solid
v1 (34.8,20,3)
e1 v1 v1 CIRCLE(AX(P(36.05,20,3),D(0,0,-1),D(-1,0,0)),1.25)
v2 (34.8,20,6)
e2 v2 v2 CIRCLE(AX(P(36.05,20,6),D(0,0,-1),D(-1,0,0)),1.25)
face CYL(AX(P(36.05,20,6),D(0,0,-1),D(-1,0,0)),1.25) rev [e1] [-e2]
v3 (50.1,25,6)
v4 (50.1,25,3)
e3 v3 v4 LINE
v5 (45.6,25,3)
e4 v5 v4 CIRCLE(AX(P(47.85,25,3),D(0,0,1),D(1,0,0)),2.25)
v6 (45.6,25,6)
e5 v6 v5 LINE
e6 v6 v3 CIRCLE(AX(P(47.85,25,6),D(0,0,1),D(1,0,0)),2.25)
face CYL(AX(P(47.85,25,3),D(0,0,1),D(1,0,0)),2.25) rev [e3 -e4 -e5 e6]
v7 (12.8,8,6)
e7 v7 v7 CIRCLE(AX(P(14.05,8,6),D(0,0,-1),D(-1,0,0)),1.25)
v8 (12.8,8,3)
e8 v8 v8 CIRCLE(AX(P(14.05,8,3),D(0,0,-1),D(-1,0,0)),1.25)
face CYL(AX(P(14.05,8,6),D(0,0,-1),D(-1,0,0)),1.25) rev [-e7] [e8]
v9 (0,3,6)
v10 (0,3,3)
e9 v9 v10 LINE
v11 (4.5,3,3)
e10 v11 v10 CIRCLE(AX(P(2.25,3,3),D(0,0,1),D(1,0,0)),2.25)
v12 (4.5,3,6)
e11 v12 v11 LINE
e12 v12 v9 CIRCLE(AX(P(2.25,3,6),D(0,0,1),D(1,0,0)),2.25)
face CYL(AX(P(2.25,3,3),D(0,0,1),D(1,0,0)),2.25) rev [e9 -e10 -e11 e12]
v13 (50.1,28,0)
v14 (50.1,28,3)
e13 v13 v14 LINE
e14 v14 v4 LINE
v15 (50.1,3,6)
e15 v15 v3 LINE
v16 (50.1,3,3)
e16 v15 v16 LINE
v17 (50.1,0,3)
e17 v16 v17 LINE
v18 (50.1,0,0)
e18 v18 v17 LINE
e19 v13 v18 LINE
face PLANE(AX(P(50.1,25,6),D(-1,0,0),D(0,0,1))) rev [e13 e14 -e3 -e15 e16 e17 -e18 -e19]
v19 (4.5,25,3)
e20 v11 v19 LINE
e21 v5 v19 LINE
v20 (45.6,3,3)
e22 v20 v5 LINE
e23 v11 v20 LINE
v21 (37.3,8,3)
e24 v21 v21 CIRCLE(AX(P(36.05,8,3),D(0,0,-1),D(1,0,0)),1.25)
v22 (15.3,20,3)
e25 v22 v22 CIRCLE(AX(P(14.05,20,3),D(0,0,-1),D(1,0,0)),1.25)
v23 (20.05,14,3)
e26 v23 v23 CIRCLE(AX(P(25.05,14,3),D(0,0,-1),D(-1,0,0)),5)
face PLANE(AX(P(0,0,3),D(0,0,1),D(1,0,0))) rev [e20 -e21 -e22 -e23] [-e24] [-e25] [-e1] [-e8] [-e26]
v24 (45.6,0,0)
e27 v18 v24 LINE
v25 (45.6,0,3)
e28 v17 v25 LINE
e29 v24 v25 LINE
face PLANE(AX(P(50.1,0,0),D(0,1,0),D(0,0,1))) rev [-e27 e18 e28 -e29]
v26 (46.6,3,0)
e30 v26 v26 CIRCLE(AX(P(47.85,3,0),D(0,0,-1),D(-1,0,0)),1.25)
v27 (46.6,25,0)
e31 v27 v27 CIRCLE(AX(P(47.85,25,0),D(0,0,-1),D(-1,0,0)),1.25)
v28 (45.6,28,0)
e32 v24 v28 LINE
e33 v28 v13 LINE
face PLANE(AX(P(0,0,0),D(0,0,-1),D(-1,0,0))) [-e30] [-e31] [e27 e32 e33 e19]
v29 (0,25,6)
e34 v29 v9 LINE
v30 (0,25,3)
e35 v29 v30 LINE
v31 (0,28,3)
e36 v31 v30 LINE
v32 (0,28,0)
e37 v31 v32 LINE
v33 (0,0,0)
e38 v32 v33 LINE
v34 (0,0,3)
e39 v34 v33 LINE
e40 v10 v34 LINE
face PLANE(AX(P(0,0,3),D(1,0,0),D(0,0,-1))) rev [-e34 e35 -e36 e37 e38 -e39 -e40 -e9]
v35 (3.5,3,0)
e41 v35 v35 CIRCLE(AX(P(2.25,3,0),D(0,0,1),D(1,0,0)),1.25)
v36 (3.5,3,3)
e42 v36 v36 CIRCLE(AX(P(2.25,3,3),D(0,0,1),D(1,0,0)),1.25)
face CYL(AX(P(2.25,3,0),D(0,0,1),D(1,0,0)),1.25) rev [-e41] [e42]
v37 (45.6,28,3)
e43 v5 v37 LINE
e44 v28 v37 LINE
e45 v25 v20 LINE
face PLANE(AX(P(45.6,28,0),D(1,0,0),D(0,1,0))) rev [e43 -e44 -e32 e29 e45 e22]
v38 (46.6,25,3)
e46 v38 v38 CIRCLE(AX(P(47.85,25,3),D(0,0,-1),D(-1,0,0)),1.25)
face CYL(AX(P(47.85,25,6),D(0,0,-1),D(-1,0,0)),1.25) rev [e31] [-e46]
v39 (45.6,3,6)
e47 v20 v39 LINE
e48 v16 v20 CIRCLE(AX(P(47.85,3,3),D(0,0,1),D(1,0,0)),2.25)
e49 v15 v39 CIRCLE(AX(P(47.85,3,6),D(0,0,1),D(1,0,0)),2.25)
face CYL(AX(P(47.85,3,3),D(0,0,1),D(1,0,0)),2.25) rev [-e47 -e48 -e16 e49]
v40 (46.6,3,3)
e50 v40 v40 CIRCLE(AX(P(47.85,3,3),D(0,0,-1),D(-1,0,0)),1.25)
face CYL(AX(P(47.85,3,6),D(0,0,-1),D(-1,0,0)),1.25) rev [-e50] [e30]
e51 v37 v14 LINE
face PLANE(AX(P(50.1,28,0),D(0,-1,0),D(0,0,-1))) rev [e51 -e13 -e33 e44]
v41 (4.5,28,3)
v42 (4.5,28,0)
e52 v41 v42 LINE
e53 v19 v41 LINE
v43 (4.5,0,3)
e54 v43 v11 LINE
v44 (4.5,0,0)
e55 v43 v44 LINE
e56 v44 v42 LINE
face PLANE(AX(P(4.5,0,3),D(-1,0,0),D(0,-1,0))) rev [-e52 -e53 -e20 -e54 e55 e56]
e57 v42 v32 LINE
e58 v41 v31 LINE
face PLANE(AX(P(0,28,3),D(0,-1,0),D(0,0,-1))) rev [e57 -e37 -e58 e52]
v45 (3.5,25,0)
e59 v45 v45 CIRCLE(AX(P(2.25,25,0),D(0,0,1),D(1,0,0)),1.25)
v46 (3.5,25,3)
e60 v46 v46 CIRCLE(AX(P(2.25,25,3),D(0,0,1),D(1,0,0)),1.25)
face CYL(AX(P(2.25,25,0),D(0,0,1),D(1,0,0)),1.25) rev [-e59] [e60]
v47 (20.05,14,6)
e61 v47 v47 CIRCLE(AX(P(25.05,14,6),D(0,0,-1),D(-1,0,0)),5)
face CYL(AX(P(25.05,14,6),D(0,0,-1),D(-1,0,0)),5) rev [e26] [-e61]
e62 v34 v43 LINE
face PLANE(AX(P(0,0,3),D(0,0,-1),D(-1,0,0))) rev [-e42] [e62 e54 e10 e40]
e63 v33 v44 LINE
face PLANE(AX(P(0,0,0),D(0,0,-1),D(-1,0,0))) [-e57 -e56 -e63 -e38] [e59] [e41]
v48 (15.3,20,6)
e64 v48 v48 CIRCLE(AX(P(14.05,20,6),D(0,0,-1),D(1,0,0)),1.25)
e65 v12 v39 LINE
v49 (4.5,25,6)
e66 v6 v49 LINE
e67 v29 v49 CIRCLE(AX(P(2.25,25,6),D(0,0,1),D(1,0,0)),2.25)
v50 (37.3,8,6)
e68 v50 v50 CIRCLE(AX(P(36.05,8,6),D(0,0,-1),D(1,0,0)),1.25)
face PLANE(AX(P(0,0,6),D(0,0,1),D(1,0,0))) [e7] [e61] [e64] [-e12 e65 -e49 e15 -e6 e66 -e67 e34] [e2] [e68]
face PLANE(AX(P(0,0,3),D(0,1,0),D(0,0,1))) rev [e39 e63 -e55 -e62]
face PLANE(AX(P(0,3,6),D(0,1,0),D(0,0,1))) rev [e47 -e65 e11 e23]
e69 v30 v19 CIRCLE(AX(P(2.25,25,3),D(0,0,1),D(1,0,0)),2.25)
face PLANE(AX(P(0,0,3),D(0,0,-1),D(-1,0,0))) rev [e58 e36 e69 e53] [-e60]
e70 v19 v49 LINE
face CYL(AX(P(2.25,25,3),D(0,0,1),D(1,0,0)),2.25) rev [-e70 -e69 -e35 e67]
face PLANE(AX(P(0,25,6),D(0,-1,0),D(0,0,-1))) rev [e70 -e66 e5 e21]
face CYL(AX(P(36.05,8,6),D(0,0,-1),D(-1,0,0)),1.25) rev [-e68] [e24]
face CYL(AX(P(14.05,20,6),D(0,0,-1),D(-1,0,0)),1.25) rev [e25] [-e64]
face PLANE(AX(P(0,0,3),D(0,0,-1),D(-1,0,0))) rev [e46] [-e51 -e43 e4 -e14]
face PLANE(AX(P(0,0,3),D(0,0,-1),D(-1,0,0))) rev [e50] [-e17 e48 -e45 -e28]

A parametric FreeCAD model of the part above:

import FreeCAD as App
import Part
import Sketcher

V = App.Vector

doc = App.newDocument("Part")
body = doc.addObject("PartDesign::Body", "Body")

# Sketch on XY plane
sketch1 = doc.addObject("Sketcher::SketchObject", "Sketch")
body.addObject(sketch1)
sketch1.AttachmentSupport = (doc.XY_Plane, [""])
sketch1.MapMode = "FlatFace"
sketch1.addGeometry([
    Part.LineSegment(V(0, 28, 0), V(0, 0, 0)),
    Part.LineSegment(V(0, 0, 0), V(4.5, 0, 0)),
    Part.LineSegment(V(4.5, 0, 0), V(4.5, 28, 0)),
    Part.LineSegment(V(4.5, 28, 0), V(0, 28, 0)),
], False)
sketch1.addConstraint([
    Sketcher.Constraint("Coincident", 0, 2, 1, 1),
    Sketcher.Constraint("Coincident", 1, 2, 2, 1),
    Sketcher.Constraint("Coincident", 2, 2, 3, 1),
    Sketcher.Constraint("Coincident", 3, 2, 0, 1),
    Sketcher.Constraint("Vertical", 0),
    Sketcher.Constraint("Horizontal", 1),
    Sketcher.Constraint("Vertical", 2),
    Sketcher.Constraint("Horizontal", 3),
    Sketcher.Constraint("Coincident", 0, 2, -1, 1),
    Sketcher.Constraint("DistanceY", 0, 2, 0, 1, 28.0),
    Sketcher.Constraint("DistanceX", 1, 1, 1, 2, 4.5),
])
pad1 = doc.addObject("PartDesign::Pad", "Pad")
body.addObject(pad1)
pad1.Profile = sketch1
pad1.Length = 3

# Sketch on XY plane
sketch2 = doc.addObject("Sketcher::SketchObject", "Sketch001")
body.addObject(sketch2)
sketch2.AttachmentSupport = (doc.XY_Plane, [""])
sketch2.MapMode = "FlatFace"
sketch2.AttachmentOffset = App.Placement(V(0, 0, 3), App.Rotation())
sketch2.addGeometry([
    Part.LineSegment(V(0, 25, 0), V(0, 3, 0)),
    Part.LineSegment(V(0, 3, 0), V(50.1, 3, 0)),
    Part.LineSegment(V(50.1, 3, 0), V(50.1, 25, 0)),
    Part.LineSegment(V(50.1, 25, 0), V(0, 25, 0)),
], False)
sketch2.addConstraint([
    Sketcher.Constraint("Coincident", 0, 2, 1, 1),
    Sketcher.Constraint("Coincident", 1, 2, 2, 1),
    Sketcher.Constraint("Coincident", 2, 2, 3, 1),
    Sketcher.Constraint("Coincident", 3, 2, 0, 1),
    Sketcher.Constraint("Vertical", 0),
    Sketcher.Constraint("Horizontal", 1),
    Sketcher.Constraint("Vertical", 2),
    Sketcher.Constraint("Horizontal", 3),
    Sketcher.Constraint("PointOnObject", 0, 2, -2),
    Sketcher.Constraint("DistanceY", 0, 2, 0, 1, 22.0),
    Sketcher.Constraint("DistanceX", 1, 1, 1, 2, 50.1),
    Sketcher.Constraint("DistanceY", -1, 1, 0, 2, 3.0),
])
pad2 = doc.addObject("PartDesign::Pad", "Pad001")
body.addObject(pad2)
pad2.Profile = sketch2
pad2.Length = 3

# Sketch on XY plane
sketch3 = doc.addObject("Sketcher::SketchObject", "Sketch002")
body.addObject(sketch3)
sketch3.AttachmentSupport = (doc.XY_Plane, [""])
sketch3.MapMode = "FlatFace"
sketch3.AttachmentOffset = App.Placement(V(0, 0, 3), App.Rotation())
sketch3.addGeometry([
    Part.LineSegment(V(50.1, 28, 0), V(50.1, 0, 0)),
    Part.LineSegment(V(50.1, 0, 0), V(45.6, 0, 0)),
    Part.LineSegment(V(45.6, 0, 0), V(45.6, 28, 0)),
    Part.LineSegment(V(45.6, 28, 0), V(50.1, 28, 0)),
], False)
sketch3.addConstraint([
    Sketcher.Constraint("Coincident", 0, 2, 1, 1),
    Sketcher.Constraint("Coincident", 1, 2, 2, 1),
    Sketcher.Constraint("Coincident", 2, 2, 3, 1),
    Sketcher.Constraint("Coincident", 3, 2, 0, 1),
    Sketcher.Constraint("Vertical", 0),
    Sketcher.Constraint("Horizontal", 1),
    Sketcher.Constraint("Vertical", 2),
    Sketcher.Constraint("Horizontal", 3),
    Sketcher.Constraint("PointOnObject", 0, 2, -1),
    Sketcher.Constraint("DistanceY", 0, 2, 0, 1, 28.0),
    Sketcher.Constraint("DistanceX", 1, 2, 1, 1, 4.5),
    Sketcher.Constraint("DistanceX", -1, 1, 0, 2, 50.1),
])
pad3 = doc.addObject("PartDesign::Pad", "Pad002")
body.addObject(pad3)
pad3.Profile = sketch3
pad3.Length = 3
pad3.Reversed = True

# Sketch on XY plane
sketch4 = doc.addObject("Sketcher::SketchObject", "Sketch003")
body.addObject(sketch4)
sketch4.AttachmentSupport = (doc.XY_Plane, [""])
sketch4.MapMode = "FlatFace"
sketch4.addGeometry([
    Part.Circle(V(47.85, 25, 0), V(0, 0, 1), 1.25),
    Part.Circle(V(47.85, 3, 0), V(0, 0, 1), 1.25),
], False)
sketch4.addConstraint([
    Sketcher.Constraint("Equal", 0, 1),
    Sketcher.Constraint("Vertical", 0, 3, 1, 3),
    Sketcher.Constraint("Diameter", 0, 2.5),
    Sketcher.Constraint("DistanceY", -1, 1, 0, 3, 25.0),
    Sketcher.Constraint("DistanceY", -1, 1, 1, 3, 3.0),
    Sketcher.Constraint("DistanceX", -1, 1, 0, 3, 47.85),
])
pocket1 = doc.addObject("PartDesign::Pocket", "Pocket")
body.addObject(pocket1)
pocket1.Profile = sketch4
pocket1.Type = "ThroughAll"
pocket1.Reversed = True

# Sketch on XY plane
sketch5 = doc.addObject("Sketcher::SketchObject", "Sketch004")
body.addObject(sketch5)
sketch5.AttachmentSupport = (doc.XY_Plane, [""])
sketch5.MapMode = "FlatFace"
sketch5.AttachmentOffset = App.Placement(V(0, 0, 3), App.Rotation())
sketch5.addGeometry([
    Part.Circle(V(2.25, 25, 0), V(0, 0, 1), 1.25),
    Part.Circle(V(2.25, 3, 0), V(0, 0, 1), 1.25),
], False)
sketch5.addConstraint([
    Sketcher.Constraint("Equal", 0, 1),
    Sketcher.Constraint("Vertical", 0, 3, 1, 3),
    Sketcher.Constraint("Diameter", 0, 2.5),
    Sketcher.Constraint("DistanceY", -1, 1, 0, 3, 25.0),
    Sketcher.Constraint("DistanceY", -1, 1, 1, 3, 3.0),
    Sketcher.Constraint("DistanceX", -1, 1, 0, 3, 2.25),
])
pocket2 = doc.addObject("PartDesign::Pocket", "Pocket001")
body.addObject(pocket2)
pocket2.Profile = sketch5
pocket2.Type = "ThroughAll"

# Sketch on XY plane
sketch6 = doc.addObject("Sketcher::SketchObject", "Sketch005")
body.addObject(sketch6)
sketch6.AttachmentSupport = (doc.XY_Plane, [""])
sketch6.MapMode = "FlatFace"
sketch6.AttachmentOffset = App.Placement(V(0, 0, 3), App.Rotation())
sketch6.addGeometry([
    Part.Circle(V(25.05, 14, 0), V(0, 0, 1), 5),  # 0
    Part.Circle(V(36.05, 20, 0), V(0, 0, 1), 1.25),  # 1
    Part.Circle(V(14.05, 20, 0), V(0, 0, 1), 1.25),  # 2
    Part.Circle(V(36.05, 8, 0), V(0, 0, 1), 1.25),  # 3
    Part.Circle(V(14.05, 8, 0), V(0, 0, 1), 1.25),  # 4
], False)
sketch6.addConstraint([
    Sketcher.Constraint("Equal", 1, 2),
    Sketcher.Constraint("Equal", 2, 3),
    Sketcher.Constraint("Equal", 3, 4),
    Sketcher.Constraint("Horizontal", 1, 3, 2, 3),
    Sketcher.Constraint("Horizontal", 3, 3, 4, 3),
    Sketcher.Constraint("Vertical", 1, 3, 3, 3),
    Sketcher.Constraint("Vertical", 2, 3, 4, 3),
    Sketcher.Constraint("Diameter", 0, 10.0),
    Sketcher.Constraint("Diameter", 1, 2.5),
    Sketcher.Constraint("DistanceY", -1, 1, 0, 3, 14.0),
    Sketcher.Constraint("DistanceY", -1, 1, 1, 3, 20.0),
    Sketcher.Constraint("DistanceY", -1, 1, 3, 3, 8.0),
    Sketcher.Constraint("DistanceX", 0, 3, 1, 3, 11.0),
    Sketcher.Constraint("DistanceX", 2, 3, 0, 3, 11.0),
    Sketcher.Constraint("DistanceX", -1, 1, 0, 3, 25.05),
])
pocket3 = doc.addObject("PartDesign::Pocket", "Pocket002")
body.addObject(pocket3)
pocket3.Profile = sketch6
pocket3.Type = "ThroughAll"
pocket3.Reversed = True

# Sketch on XY plane
sketch7 = doc.addObject("Sketcher::SketchObject", "Sketch006")
body.addObject(sketch7)
sketch7.AttachmentSupport = (doc.XY_Plane, [""])
sketch7.MapMode = "FlatFace"
sketch7.AttachmentOffset = App.Placement(V(0, 0, 6), App.Rotation())
sketch7.addGeometry([
    Part.Circle(V(2.25, 25, 0), V(0, 0, 1), 2.25),
    Part.Circle(V(2.25, 3, 0), V(0, 0, 1), 2.25),
    Part.Circle(V(47.85, 25, 0), V(0, 0, 1), 2.25),
    Part.Circle(V(47.85, 3, 0), V(0, 0, 1), 2.25),
], False)
sketch7.addConstraint([
    Sketcher.Constraint("Equal", 0, 1),
    Sketcher.Constraint("Equal", 1, 2),
    Sketcher.Constraint("Equal", 2, 3),
    Sketcher.Constraint("Horizontal", 0, 3, 2, 3),
    Sketcher.Constraint("Horizontal", 1, 3, 3, 3),
    Sketcher.Constraint("Vertical", 0, 3, 1, 3),
    Sketcher.Constraint("Vertical", 2, 3, 3, 3),
    Sketcher.Constraint("Diameter", 0, 4.5),
    Sketcher.Constraint("DistanceY", -1, 1, 0, 3, 25.0),
    Sketcher.Constraint("DistanceY", -1, 1, 1, 3, 3.0),
    Sketcher.Constraint("DistanceX", 0, 3, 2, 3, 45.6),
    Sketcher.Constraint("DistanceX", -1, 1, 0, 3, 2.25),
])
pocket4 = doc.addObject("PartDesign::Pocket", "Pocket003")
body.addObject(pocket4)
pocket4.Profile = sketch7
pocket4.Length = 3

doc.recompute()
